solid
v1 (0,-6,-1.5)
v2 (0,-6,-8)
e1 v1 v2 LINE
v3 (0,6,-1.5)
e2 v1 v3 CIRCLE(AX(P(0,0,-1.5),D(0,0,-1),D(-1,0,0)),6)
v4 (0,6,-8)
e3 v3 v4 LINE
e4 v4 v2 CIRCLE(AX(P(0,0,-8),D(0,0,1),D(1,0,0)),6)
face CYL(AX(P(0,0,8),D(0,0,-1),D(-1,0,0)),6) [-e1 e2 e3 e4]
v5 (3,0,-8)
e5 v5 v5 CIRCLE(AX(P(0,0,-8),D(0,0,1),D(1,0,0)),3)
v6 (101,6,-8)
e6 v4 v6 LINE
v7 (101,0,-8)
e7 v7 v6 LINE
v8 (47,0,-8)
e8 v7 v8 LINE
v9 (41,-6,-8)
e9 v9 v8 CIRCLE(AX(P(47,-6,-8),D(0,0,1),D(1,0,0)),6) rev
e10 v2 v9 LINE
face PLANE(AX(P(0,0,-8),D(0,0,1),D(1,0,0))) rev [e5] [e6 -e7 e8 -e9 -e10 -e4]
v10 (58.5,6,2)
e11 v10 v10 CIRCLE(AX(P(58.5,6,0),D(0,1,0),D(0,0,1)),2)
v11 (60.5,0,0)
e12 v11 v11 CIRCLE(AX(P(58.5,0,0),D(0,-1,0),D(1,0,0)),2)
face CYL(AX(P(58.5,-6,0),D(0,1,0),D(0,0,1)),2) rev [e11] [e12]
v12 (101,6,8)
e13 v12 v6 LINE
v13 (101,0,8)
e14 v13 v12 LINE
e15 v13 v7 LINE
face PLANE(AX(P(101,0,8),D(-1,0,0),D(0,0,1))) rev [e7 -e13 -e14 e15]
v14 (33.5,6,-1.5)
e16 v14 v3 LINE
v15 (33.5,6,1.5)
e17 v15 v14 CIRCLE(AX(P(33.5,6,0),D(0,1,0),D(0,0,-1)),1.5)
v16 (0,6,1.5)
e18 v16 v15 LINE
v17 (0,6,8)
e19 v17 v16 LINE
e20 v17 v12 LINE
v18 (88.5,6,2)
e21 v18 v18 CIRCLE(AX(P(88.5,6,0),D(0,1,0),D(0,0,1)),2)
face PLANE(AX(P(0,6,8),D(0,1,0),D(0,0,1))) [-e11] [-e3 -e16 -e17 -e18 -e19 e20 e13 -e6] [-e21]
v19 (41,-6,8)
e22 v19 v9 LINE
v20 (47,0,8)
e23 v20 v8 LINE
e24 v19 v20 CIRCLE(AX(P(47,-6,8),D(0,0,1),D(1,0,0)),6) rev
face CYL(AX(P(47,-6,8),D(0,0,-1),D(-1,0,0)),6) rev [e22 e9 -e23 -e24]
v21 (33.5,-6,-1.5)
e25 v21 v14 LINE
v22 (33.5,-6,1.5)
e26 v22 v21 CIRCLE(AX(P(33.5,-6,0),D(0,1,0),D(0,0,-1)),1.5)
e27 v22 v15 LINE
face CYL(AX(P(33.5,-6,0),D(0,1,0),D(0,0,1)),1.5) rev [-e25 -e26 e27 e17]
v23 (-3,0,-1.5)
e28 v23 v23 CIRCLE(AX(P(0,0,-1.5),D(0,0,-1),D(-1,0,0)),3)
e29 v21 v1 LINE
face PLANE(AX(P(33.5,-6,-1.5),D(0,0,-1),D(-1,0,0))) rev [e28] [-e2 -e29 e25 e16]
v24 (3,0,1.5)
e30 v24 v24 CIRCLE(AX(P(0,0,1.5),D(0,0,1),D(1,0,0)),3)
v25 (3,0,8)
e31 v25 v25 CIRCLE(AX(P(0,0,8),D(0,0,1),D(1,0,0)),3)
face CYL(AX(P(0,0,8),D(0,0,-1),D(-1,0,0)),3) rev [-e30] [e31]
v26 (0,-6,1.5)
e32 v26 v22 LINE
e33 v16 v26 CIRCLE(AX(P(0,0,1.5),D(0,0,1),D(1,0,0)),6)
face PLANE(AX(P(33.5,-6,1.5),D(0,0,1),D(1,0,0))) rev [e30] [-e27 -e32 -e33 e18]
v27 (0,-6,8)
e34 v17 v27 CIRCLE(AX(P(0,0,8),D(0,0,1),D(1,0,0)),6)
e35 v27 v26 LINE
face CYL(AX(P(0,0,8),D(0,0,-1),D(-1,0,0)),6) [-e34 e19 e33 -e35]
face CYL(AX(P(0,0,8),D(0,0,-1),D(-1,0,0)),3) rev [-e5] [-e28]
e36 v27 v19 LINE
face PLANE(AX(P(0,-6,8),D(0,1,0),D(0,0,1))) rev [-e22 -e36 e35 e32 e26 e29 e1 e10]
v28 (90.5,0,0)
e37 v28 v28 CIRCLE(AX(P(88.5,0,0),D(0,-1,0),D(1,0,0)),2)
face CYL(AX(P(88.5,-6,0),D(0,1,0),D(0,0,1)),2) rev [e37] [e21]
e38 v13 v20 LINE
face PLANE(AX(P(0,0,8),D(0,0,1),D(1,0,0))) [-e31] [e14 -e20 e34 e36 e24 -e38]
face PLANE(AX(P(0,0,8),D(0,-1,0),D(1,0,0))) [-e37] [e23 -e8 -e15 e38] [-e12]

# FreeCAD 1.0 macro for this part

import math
import FreeCAD as App
import Part
import Sketcher

V = App.Vector

doc = App.newDocument("Part")
body = doc.addObject("PartDesign::Body", "Body")

# Sketch on XY plane
sketch1 = body.newObject("Sketcher::SketchObject", "Sketch")
sketch1.AttachmentSupport = (doc.getObject("XY_Plane"), [""])
sketch1.MapMode = "FlatFace"
sketch1.addGeometry(Part.LineSegment(V(0, -6, 0), V(41, -6, 0)), False)
sketch1.addGeometry(Part.ArcOfCircle(Part.Circle(V(47, -6, 0), V(0, 0, 1), 6), math.radians(90), math.radians(180)), False)
sketch1.addGeometry(Part.LineSegment(V(47, 0, 0), V(101, 0, 0)), False)
sketch1.addGeometry(Part.LineSegment(V(101, 0, 0), V(101, 6, 0)), False)
sketch1.addGeometry(Part.LineSegment(V(101, 6, 0), V(0, 6, 0)), False)
sketch1.addGeometry(Part.ArcOfCircle(Part.Circle(V(0, 0, 0), V(0, 0, 1), 6), math.radians(90), math.radians(270)), False)
sketch1.addGeometry(Part.Circle(V(0, 0, 0), V(0, 0, 1), 3), False)
sketch1.addConstraint(Sketcher.Constraint("Coincident", 0, 2, 1, 2))
sketch1.addConstraint(Sketcher.Constraint("Tangent", 1, 1, 2, 1))
sketch1.addConstraint(Sketcher.Constraint("Coincident", 2, 2, 3, 1))
sketch1.addConstraint(Sketcher.Constraint("Coincident", 3, 2, 4, 1))
sketch1.addConstraint(Sketcher.Constraint("Tangent", 4, 2, 5, 1))
sketch1.addConstraint(Sketcher.Constraint("Tangent", 5, 2, 0, 1))
sketch1.addConstraint(Sketcher.Constraint("Horizontal", 0))
sketch1.addConstraint(Sketcher.Constraint("Horizontal", 2))
sketch1.addConstraint(Sketcher.Constraint("Vertical", 3))
sketch1.addConstraint(Sketcher.Constraint("Horizontal", 4))
sketch1.addConstraint(Sketcher.Constraint("Coincident", 5, 3, -1, 1))
sketch1.addConstraint(Sketcher.Constraint("Coincident", 6, 3, -1, 1))
sketch1.addConstraint(Sketcher.Constraint("Equal", 1, 5))
sketch1.addConstraint(Sketcher.Constraint("PointOnObject", 1, 1, -1))
sketch1.addConstraint(Sketcher.Constraint("Diameter", 6, 6.0))
sketch1.addConstraint(Sketcher.Constraint("Radius", 1, 6.0))
sketch1.addConstraint(Sketcher.Constraint("DistanceX", 0, 1, 0, 2, 41.0))
sketch1.addConstraint(Sketcher.Constraint("DistanceX", 2, 1, 2, 2, 54.0))
pad1 = body.newObject("PartDesign::Pad", "Pad")
pad1.Profile = sketch1
pad1.Length = 16
pad1.Midplane = True

# Sketch on XZ plane
sketch2 = body.newObject("Sketcher::SketchObject", "Sketch001")
sketch2.AttachmentSupport = (doc.getObject("XZ_Plane"), [""])
sketch2.MapMode = "FlatFace"
sketch2.AttachmentOffset = App.Placement(V(0, 0, -6), App.Rotation())
sketch2.addGeometry(Part.Circle(V(58.5, 0, 0), V(0, 0, 1), 2), False)
sketch2.addGeometry(Part.Circle(V(88.5, 0, 0), V(0, 0, 1), 2), False)
sketch2.addGeometry(Part.LineSegment(V(-6, 1.5, 0), V(33.5, 1.5, 0)), False)
sketch2.addGeometry(Part.ArcOfCircle(Part.Circle(V(33.5, 0, 0), V(0, 0, 1), 1.5), math.radians(-90), math.radians(90)), False)
sketch2.addGeometry(Part.LineSegment(V(33.5, -1.5, 0), V(-6, -1.5, 0)), False)
sketch2.addGeometry(Part.LineSegment(V(-6, -1.5, 0), V(-6, 1.5, 0)), False)
sketch2.addConstraint(Sketcher.Constraint("Tangent", 2, 2, 3, 2))
sketch2.addConstraint(Sketcher.Constraint("Tangent", 3, 1, 4, 1))
sketch2.addConstraint(Sketcher.Constraint("Coincident", 4, 2, 5, 1))
sketch2.addConstraint(Sketcher.Constraint("Coincident", 5, 2, 2, 1))
sketch2.addConstraint(Sketcher.Constraint("Horizontal", 2))
sketch2.addConstraint(Sketcher.Constraint("Horizontal", 4))
sketch2.addConstraint(Sketcher.Constraint("Vertical", 5))
sketch2.addConstraint(Sketcher.Constraint("Equal", 0, 1))
sketch2.addConstraint(Sketcher.Constraint("PointOnObject", 0, 3, -1))
sketch2.addConstraint(Sketcher.Constraint("PointOnObject", 1, 3, -1))
sketch2.addConstraint(Sketcher.Constraint("PointOnObject", 3, 3, -1))
sketch2.addConstraint(Sketcher.Constraint("Diameter", 0, 4.0))
sketch2.addConstraint(Sketcher.Constraint("Radius", 3, 1.5))
sketch2.addConstraint(Sketcher.Constraint("DistanceX", 2, 1, 2, 2, 39.5))
sketch2.addConstraint(Sketcher.Constraint("DistanceX", 4, 2, -1, 1, 6.0))
sketch2.addConstraint(Sketcher.Constraint("DistanceX", 0, 3, 1, 3, 30.0))
sketch2.addConstraint(Sketcher.Constraint("DistanceX", 3, 3, 0, 3, 25.0))
pocket1 = body.newObject("PartDesign::Pocket", "Pocket")
pocket1.Profile = sketch2
pocket1.Type = "ThroughAll"
pocket1.Reversed = True

doc.recompute()
